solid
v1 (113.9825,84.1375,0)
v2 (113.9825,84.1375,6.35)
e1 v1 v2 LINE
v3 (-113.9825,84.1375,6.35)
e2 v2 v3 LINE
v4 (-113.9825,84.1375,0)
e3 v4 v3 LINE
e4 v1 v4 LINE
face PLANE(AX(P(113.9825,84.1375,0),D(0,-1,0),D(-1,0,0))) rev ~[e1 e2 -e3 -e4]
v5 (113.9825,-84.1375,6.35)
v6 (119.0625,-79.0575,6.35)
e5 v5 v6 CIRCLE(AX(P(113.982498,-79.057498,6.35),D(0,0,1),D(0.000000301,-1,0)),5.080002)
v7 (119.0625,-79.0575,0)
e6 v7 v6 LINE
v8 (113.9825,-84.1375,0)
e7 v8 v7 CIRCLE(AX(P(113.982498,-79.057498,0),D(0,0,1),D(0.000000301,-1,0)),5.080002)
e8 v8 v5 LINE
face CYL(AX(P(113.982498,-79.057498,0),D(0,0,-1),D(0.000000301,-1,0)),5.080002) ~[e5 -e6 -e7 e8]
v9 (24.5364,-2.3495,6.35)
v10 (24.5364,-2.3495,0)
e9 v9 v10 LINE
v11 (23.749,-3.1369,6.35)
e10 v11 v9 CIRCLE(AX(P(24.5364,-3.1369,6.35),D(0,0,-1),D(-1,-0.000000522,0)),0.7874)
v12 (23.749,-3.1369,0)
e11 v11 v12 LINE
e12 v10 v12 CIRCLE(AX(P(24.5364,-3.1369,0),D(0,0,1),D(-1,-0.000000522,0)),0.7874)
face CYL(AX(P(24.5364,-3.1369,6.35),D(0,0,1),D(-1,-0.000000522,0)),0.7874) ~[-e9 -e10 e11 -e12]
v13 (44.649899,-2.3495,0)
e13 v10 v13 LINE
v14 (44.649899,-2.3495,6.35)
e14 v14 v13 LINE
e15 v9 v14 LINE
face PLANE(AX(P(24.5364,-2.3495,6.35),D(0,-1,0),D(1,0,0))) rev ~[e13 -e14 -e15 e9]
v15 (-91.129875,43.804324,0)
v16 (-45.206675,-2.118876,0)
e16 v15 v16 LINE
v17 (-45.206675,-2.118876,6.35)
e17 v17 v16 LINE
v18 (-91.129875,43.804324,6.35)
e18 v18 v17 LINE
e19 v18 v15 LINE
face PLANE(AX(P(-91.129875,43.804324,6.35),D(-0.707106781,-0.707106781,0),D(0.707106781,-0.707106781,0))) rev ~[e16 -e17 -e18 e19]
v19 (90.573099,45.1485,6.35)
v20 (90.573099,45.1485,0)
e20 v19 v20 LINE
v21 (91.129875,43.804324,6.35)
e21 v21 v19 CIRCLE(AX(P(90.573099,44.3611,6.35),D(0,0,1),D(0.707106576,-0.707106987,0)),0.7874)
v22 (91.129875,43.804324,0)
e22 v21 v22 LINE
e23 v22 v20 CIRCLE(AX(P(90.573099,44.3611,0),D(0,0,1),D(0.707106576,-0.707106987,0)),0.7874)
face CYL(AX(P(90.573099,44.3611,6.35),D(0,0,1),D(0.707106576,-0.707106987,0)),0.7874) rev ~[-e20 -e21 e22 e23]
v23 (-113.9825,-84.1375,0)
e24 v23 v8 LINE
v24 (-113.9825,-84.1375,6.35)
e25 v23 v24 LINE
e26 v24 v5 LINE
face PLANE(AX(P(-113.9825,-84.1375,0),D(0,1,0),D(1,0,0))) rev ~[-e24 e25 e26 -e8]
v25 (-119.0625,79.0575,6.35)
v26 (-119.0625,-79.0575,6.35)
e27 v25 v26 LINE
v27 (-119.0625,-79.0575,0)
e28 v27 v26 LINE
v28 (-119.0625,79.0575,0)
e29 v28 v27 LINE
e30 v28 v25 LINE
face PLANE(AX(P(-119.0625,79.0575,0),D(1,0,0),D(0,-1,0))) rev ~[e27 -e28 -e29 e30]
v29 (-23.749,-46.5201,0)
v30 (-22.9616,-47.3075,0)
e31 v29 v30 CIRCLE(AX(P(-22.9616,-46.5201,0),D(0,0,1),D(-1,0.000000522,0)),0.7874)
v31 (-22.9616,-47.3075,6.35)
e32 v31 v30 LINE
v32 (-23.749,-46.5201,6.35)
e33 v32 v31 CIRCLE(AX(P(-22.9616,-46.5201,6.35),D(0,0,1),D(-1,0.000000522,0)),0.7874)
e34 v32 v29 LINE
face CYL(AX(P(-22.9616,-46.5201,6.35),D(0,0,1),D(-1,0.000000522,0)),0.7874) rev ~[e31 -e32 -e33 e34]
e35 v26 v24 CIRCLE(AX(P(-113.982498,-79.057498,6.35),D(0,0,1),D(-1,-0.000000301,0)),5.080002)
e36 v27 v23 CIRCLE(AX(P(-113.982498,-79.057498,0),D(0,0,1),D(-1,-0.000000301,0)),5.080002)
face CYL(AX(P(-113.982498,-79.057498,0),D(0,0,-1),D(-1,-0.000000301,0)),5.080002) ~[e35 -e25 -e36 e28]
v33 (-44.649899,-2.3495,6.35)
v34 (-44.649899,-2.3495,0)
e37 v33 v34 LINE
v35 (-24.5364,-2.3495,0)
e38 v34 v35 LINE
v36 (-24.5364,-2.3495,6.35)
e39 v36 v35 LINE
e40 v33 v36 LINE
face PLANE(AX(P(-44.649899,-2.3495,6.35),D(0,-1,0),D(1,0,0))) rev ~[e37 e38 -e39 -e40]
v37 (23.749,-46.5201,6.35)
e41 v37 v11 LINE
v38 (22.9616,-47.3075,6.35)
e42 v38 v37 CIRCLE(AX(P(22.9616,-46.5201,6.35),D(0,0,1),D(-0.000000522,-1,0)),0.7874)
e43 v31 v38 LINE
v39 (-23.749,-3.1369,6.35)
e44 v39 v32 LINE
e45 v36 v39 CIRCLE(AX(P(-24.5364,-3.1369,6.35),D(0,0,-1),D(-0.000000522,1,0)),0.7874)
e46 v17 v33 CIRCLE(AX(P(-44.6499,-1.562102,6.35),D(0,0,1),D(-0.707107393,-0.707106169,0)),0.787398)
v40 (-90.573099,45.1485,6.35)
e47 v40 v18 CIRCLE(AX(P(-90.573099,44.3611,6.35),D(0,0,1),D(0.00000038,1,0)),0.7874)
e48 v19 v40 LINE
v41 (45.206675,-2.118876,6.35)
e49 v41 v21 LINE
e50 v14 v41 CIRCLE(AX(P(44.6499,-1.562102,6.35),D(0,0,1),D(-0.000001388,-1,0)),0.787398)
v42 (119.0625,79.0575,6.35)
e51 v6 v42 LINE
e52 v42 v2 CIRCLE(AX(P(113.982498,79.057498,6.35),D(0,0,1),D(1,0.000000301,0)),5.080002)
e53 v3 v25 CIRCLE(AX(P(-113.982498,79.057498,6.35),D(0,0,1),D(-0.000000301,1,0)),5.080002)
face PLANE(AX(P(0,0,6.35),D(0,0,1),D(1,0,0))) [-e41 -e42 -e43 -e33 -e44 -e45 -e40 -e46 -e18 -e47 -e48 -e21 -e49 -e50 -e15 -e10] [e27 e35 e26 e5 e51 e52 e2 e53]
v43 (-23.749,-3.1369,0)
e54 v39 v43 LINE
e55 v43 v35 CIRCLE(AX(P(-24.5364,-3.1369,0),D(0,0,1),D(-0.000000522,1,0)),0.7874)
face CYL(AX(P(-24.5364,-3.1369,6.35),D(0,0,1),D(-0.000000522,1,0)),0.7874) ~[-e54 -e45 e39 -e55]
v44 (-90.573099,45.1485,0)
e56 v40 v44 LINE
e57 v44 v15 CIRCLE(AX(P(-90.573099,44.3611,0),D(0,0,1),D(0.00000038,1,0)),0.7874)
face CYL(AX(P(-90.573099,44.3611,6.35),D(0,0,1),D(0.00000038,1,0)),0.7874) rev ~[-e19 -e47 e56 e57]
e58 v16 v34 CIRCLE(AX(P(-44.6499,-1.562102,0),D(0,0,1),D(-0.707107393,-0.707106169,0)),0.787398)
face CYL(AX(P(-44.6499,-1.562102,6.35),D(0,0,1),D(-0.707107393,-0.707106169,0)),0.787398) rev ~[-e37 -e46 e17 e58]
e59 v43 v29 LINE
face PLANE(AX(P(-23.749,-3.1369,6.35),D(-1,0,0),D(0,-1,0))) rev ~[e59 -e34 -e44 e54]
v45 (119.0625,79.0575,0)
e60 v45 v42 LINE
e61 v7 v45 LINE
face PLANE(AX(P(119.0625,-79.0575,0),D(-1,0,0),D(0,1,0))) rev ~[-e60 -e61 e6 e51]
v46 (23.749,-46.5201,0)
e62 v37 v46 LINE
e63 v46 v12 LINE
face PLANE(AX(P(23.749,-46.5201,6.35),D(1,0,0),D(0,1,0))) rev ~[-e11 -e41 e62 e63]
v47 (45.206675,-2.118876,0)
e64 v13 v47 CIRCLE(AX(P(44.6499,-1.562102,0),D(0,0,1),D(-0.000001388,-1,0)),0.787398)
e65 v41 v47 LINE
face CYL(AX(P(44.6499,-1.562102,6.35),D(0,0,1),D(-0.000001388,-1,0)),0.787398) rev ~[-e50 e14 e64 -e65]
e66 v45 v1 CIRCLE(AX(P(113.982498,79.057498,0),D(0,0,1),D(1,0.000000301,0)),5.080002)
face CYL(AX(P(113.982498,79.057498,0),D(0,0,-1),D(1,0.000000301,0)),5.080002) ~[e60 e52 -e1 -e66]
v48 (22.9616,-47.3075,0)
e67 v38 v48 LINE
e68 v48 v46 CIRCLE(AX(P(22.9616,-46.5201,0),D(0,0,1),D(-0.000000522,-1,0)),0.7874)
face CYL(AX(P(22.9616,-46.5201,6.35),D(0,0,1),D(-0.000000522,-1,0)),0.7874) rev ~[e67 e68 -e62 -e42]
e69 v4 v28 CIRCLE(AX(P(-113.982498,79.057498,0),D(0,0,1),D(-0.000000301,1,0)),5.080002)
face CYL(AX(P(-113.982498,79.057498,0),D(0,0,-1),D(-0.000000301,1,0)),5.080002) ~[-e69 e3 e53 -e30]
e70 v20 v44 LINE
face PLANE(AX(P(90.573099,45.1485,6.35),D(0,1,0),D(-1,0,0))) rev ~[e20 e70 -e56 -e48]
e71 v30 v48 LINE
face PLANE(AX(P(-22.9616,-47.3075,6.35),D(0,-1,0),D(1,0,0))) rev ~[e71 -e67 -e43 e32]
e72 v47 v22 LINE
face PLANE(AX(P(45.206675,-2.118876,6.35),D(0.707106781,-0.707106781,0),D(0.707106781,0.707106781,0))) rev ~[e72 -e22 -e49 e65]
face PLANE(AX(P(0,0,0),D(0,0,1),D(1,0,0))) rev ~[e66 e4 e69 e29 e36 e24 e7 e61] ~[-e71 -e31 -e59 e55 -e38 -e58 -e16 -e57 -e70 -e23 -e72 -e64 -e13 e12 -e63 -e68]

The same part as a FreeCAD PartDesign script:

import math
import FreeCAD as App
import Part
import Sketcher

V = App.Vector
Q = App.Units.Quantity

doc = App.newDocument("Part")
body = doc.addObject("PartDesign::Body", "Body")

sketch1 = body.newObject("Sketcher::SketchObject", "Sketch")
sketch1.AttachmentSupport = (doc.getObject("XY_Plane"), [""])
sketch1.MapMode = "FlatFace"
sketch1.addGeometry(Part.LineSegment(V(114, 84, 0), V(-114, 84, 0)), False)
sketch1.addGeometry(Part.ArcOfCircle(Part.Circle(V(-114, 79, 0), V(0, 0, 1), 5), math.radians(90), math.radians(180)), False)
sketch1.addGeometry(Part.LineSegment(V(-119, 79, 0), V(-119, -79, 0)), False)
sketch1.addGeometry(Part.ArcOfCircle(Part.Circle(V(-114, -79, 0), V(0, 0, 1), 5), math.radians(-180), math.radians(-90)), False)
sketch1.addGeometry(Part.LineSegment(V(-114, -84, 0), V(114, -84, 0)), False)
sketch1.addGeometry(Part.ArcOfCircle(Part.Circle(V(114, -79, 0), V(0, 0, 1), 5), math.radians(-90), math.radians(0)), False)
sketch1.addGeometry(Part.LineSegment(V(119, -79, 0), V(119, 79, 0)), False)
sketch1.addGeometry(Part.ArcOfCircle(Part.Circle(V(114, 79, 0), V(0, 0, 1), 5), math.radians(0), math.radians(90)), False)
sketch1.addConstraint(Sketcher.Constraint("Tangent", 0, 2, 1, 1))
sketch1.addConstraint(Sketcher.Constraint("Tangent", 1, 2, 2, 1))
sketch1.addConstraint(Sketcher.Constraint("Tangent", 2, 2, 3, 1))
sketch1.addConstraint(Sketcher.Constraint("Tangent", 3, 2, 4, 1))
sketch1.addConstraint(Sketcher.Constraint("Tangent", 4, 2, 5, 1))
sketch1.addConstraint(Sketcher.Constraint("Tangent", 5, 2, 6, 1))
sketch1.addConstraint(Sketcher.Constraint("Tangent", 6, 2, 7, 1))
sketch1.addConstraint(Sketcher.Constraint("Tangent", 7, 2, 0, 1))
sketch1.addConstraint(Sketcher.Constraint("Horizontal", 0))
sketch1.addConstraint(Sketcher.Constraint("Vertical", 2))
sketch1.addConstraint(Sketcher.Constraint("Horizontal", 4))
sketch1.addConstraint(Sketcher.Constraint("Vertical", 6))
sketch1.addConstraint(Sketcher.Constraint("Equal", 1, 3))
sketch1.addConstraint(Sketcher.Constraint("Equal", 3, 5))
sketch1.addConstraint(Sketcher.Constraint("Equal", 5, 7))
sketch1.addConstraint(Sketcher.Constraint("Symmetric", 1, 3, 5, 3, -1, 1))
sketch1.addConstraint(Sketcher.Constraint("Radius", 1, Q("0.2000001 in")))
sketch1.addConstraint(Sketcher.Constraint("DistanceX", 0, 2, 0, 1, Q("8.975 in")))
sketch1.addConstraint(Sketcher.Constraint("DistanceY", 2, 2, 2, 1, Q("6.225 in")))
pad1 = body.newObject("PartDesign::Pad", "Pad")
pad1.Profile = sketch1
pad1.Length = Q("0.25 in")

sketch2 = body.newObject("Sketcher::SketchObject", "Sketch001")
sketch2.AttachmentSupport = (doc.getObject("XY_Plane"), [""])
sketch2.MapMode = "FlatFace"
sketch2.AttachmentOffset = App.Placement(V(0, 0, 0.25 * 25.4), App.Rotation())
sketch2.addGeometry(Part.LineSegment(V(89, 44, 0), V(-89, 44, 0)), False)
sketch2.addGeometry(Part.LineSegment(V(-89, 44, 0), V(-44, -1, 0)), False)
sketch2.addGeometry(Part.LineSegment(V(-44, -1, 0), V(-22, -1, 0)), False)
sketch2.addGeometry(Part.LineSegment(V(-22, -1, 0), V(-22, -46, 0)), False)
sketch2.addGeometry(Part.LineSegment(V(-22, -46, 0), V(22, -46, 0)), False)
sketch2.addGeometry(Part.LineSegment(V(22, -46, 0), V(22, -1, 0)), False)
sketch2.addGeometry(Part.LineSegment(V(22, -1, 0), V(44, -1, 0)), False)
sketch2.addGeometry(Part.LineSegment(V(44, -1, 0), V(89, 44, 0)), False)
sketch2.addConstraint(Sketcher.Constraint("Coincident", 0, 2, 1, 1))
sketch2.addConstraint(Sketcher.Constraint("Coincident", 1, 2, 2, 1))
sketch2.addConstraint(Sketcher.Constraint("Coincident", 2, 2, 3, 1))
sketch2.addConstraint(Sketcher.Constraint("Coincident", 3, 2, 4, 1))
sketch2.addConstraint(Sketcher.Constraint("Coincident", 4, 2, 5, 1))
sketch2.addConstraint(Sketcher.Constraint("Coincident", 5, 2, 6, 1))
sketch2.addConstraint(Sketcher.Constraint("Coincident", 6, 2, 7, 1))
sketch2.addConstraint(Sketcher.Constraint("Coincident", 7, 2, 0, 1))
sketch2.addConstraint(Sketcher.Constraint("Horizontal", 0))
sketch2.addConstraint(Sketcher.Constraint("Horizontal", 2))
sketch2.addConstraint(Sketcher.Constraint("Vertical", 3))
sketch2.addConstraint(Sketcher.Constraint("Horizontal", 4))
sketch2.addConstraint(Sketcher.Constraint("Vertical", 5))
sketch2.addConstraint(Sketcher.Constraint("Horizontal", 6))
sketch2.addConstraint(Sketcher.Constraint("Symmetric", 2, 2, 5, 2, -2))
sketch2.addConstraint(Sketcher.Constraint("Perpendicular", 1, 7))
sketch2.addConstraint(Sketcher.Constraint("Equal", 2, 6))
sketch2.addConstraint(Sketcher.Constraint("Equal", 4, 3))
sketch2.addConstraint(Sketcher.Constraint("Equal", 1, 7))
sketch2.addConstraint(Sketcher.Constraint("DistanceX", 0, 2, 0, 1, Q("7.04 in")))
sketch2.addConstraint(Sketcher.Constraint("DistanceX", 4, 1, 4, 2, Q("1.77 in")))
sketch2.addConstraint(Sketcher.Constraint("DistanceX", 1, 2, 6, 2, Q("3.5 in")))
sketch2.addConstraint(Sketcher.Constraint("DistanceY", 3, 2, -1, 1, Q("1.8125 in")))
pocket1 = body.newObject("PartDesign::Pocket", "Pocket")
pocket1.Profile = sketch2
pocket1.Length = Q("1 in")

sketch3 = body.newObject("Sketcher::SketchObject", "Sketch002")
sketch3.AttachmentSupport = (doc.getObject("XY_Plane"), [""])
sketch3.MapMode = "FlatFace"
sketch3.AttachmentOffset = App.Placement(V(0, 0, 0.25 * 25.4), App.Rotation())
sketch3.addGeometry(Part.ArcOfCircle(Part.Circle(V(-90.6, 44.4, 0), V(0, 0, 1), 0.8), math.radians(90), math.radians(225)), False)
sketch3.addGeometry(Part.LineSegment(V(-91.1, 43.8, 0), V(-45.2, -2.1, 0)), False)
sketch3.addGeometry(Part.ArcOfCircle(Part.Circle(V(-44.6, -1.6, 0), V(0, 0, 1), 0.8), math.radians(-135), math.radians(-90)), False)
sketch3.addGeometry(Part.LineSegment(V(-44.6, -2.3, 0), V(-24.5, -2.3, 0)), False)
sketch3.addGeometry(Part.ArcOfCircle(Part.Circle(V(-24.5, -3.1, 0), V(0, 0, 1), 0.8), math.radians(0), math.radians(90)), False)
sketch3.addGeometry(Part.LineSegment(V(-23.7, -3.1, 0), V(-23.7, -46.5, 0)), False)
sketch3.addGeometry(Part.ArcOfCircle(Part.Circle(V(-23, -46.5, 0), V(0, 0, 1), 0.8), math.radians(180), math.radians(270)), False)
sketch3.addGeometry(Part.LineSegment(V(-23, -47.3, 0), V(23, -47.3, 0)), False)
sketch3.addGeometry(Part.ArcOfCircle(Part.Circle(V(23, -46.5, 0), V(0, 0, 1), 0.8), math.radians(-90), math.radians(0)), False)
sketch3.addGeometry(Part.LineSegment(V(23.7, -46.5, 0), V(23.7, -3.1, 0)), False)
sketch3.addGeometry(Part.ArcOfCircle(Part.Circle(V(24.5, -3.1, 0), V(0, 0, 1), 0.8), math.radians(90), math.radians(180)), False)
sketch3.addGeometry(Part.LineSegment(V(24.5, -2.3, 0), V(44.6, -2.3, 0)), False)
sketch3.addGeometry(Part.ArcOfCircle(Part.Circle(V(44.6, -1.6, 0), V(0, 0, 1), 0.8), math.radians(-90), math.radians(-45)), False)
sketch3.addGeometry(Part.LineSegment(V(45.2, -2.1, 0), V(91.1, 43.8, 0)), False)
sketch3.addGeometry(Part.ArcOfCircle(Part.Circle(V(90.6, 44.4, 0), V(0, 0, 1), 0.8), math.radians(-45), math.radians(90)), False)
sketch3.addGeometry(Part.LineSegment(V(90.6, 45.1, 0), V(-90.6, 45.1, 0)), False)
sketch3.addConstraint(Sketcher.Constraint("Tangent", 0, 2, 1, 1))
sketch3.addConstraint(Sketcher.Constraint("Tangent", 1, 2, 2, 1))
sketch3.addConstraint(Sketcher.Constraint("Tangent", 2, 2, 3, 1))
sketch3.addConstraint(Sketcher.Constraint("Tangent", 3, 2, 4, 2))
sketch3.addConstraint(Sketcher.Constraint("Tangent", 4, 1, 5, 1))
sketch3.addConstraint(Sketcher.Constraint("Tangent", 5, 2, 6, 1))
sketch3.addConstraint(Sketcher.Constraint("Tangent", 6, 2, 7, 1))
sketch3.addConstraint(Sketcher.Constraint("Tangent", 7, 2, 8, 1))
sketch3.addConstraint(Sketcher.Constraint("Tangent", 8, 2, 9, 1))
sketch3.addConstraint(Sketcher.Constraint("Tangent", 9, 2, 10, 2))
sketch3.addConstraint(Sketcher.Constraint("Tangent", 10, 1, 11, 1))
sketch3.addConstraint(Sketcher.Constraint("Tangent", 11, 2, 12, 1))
sketch3.addConstraint(Sketcher.Constraint("Tangent", 12, 2, 13, 1))
sketch3.addConstraint(Sketcher.Constraint("Tangent", 13, 2, 14, 1))
sketch3.addConstraint(Sketcher.Constraint("Tangent", 14, 2, 15, 1))
sketch3.addConstraint(Sketcher.Constraint("Tangent", 15, 2, 0, 1))
sketch3.addConstraint(Sketcher.Constraint("Horizontal", 3))
sketch3.addConstraint(Sketcher.Constraint("Vertical", 5))
sketch3.addConstraint(Sketcher.Constraint("Horizontal", 7))
sketch3.addConstraint(Sketcher.Constraint("Vertical", 9))
sketch3.addConstraint(Sketcher.Constraint("Horizontal", 11))
sketch3.addConstraint(Sketcher.Constraint("Horizontal", 15))
sketch3.addConstraint(Sketcher.Constraint("Equal", 2, 4))
sketch3.addConstraint(Sketcher.Constraint("Equal", 4, 6))
sketch3.addConstraint(Sketcher.Constraint("Equal", 6, 8))
sketch3.addConstraint(Sketcher.Constraint("Equal", 8, 10))
sketch3.addConstraint(Sketcher.Constraint("Equal", 10, 12))
sketch3.addConstraint(Sketcher.Constraint("Equal", 10, 14))
sketch3.addConstraint(Sketcher.Constraint("Symmetric", 4, 3, 10, 3, -2))
sketch3.addConstraint(Sketcher.Constraint("Symmetric", 0, 3, 14, 3, -2))
sketch3.addConstraint(Sketcher.Constraint("Perpendicular", 1, 13))
sketch3.addConstraint(Sketcher.Constraint("Horizontal", 1, 2, 12, 2))
sketch3.addConstraint(Sketcher.Constraint("Radius", 0, Q("0.031 in")))
sketch3.addConstraint(Sketcher.Constraint("DistanceX", 7, 1, 7, 2, Q("1.808 in")))
sketch3.addConstraint(Sketcher.Constraint("DistanceY", 5, 2, 5, 1, Q("1.708 in")))
sketch3.addConstraint(Sketcher.Constraint("DistanceY", 4, 3, 0, 3, Q("1.87 in")))
sketch3.addConstraint(Sketcher.Constraint("DistanceX", 3, 1, 3, 2, 20.113499))
sketch3.addConstraint(Sketcher.Constraint("DistanceY", -1, 1, 0, 3, Q("1.7465 in")))
pocket2 = body.newObject("PartDesign::Pocket", "Pocket001")
pocket2.Profile = sketch3
pocket2.Length = Q("1 in")

doc.recompute()
